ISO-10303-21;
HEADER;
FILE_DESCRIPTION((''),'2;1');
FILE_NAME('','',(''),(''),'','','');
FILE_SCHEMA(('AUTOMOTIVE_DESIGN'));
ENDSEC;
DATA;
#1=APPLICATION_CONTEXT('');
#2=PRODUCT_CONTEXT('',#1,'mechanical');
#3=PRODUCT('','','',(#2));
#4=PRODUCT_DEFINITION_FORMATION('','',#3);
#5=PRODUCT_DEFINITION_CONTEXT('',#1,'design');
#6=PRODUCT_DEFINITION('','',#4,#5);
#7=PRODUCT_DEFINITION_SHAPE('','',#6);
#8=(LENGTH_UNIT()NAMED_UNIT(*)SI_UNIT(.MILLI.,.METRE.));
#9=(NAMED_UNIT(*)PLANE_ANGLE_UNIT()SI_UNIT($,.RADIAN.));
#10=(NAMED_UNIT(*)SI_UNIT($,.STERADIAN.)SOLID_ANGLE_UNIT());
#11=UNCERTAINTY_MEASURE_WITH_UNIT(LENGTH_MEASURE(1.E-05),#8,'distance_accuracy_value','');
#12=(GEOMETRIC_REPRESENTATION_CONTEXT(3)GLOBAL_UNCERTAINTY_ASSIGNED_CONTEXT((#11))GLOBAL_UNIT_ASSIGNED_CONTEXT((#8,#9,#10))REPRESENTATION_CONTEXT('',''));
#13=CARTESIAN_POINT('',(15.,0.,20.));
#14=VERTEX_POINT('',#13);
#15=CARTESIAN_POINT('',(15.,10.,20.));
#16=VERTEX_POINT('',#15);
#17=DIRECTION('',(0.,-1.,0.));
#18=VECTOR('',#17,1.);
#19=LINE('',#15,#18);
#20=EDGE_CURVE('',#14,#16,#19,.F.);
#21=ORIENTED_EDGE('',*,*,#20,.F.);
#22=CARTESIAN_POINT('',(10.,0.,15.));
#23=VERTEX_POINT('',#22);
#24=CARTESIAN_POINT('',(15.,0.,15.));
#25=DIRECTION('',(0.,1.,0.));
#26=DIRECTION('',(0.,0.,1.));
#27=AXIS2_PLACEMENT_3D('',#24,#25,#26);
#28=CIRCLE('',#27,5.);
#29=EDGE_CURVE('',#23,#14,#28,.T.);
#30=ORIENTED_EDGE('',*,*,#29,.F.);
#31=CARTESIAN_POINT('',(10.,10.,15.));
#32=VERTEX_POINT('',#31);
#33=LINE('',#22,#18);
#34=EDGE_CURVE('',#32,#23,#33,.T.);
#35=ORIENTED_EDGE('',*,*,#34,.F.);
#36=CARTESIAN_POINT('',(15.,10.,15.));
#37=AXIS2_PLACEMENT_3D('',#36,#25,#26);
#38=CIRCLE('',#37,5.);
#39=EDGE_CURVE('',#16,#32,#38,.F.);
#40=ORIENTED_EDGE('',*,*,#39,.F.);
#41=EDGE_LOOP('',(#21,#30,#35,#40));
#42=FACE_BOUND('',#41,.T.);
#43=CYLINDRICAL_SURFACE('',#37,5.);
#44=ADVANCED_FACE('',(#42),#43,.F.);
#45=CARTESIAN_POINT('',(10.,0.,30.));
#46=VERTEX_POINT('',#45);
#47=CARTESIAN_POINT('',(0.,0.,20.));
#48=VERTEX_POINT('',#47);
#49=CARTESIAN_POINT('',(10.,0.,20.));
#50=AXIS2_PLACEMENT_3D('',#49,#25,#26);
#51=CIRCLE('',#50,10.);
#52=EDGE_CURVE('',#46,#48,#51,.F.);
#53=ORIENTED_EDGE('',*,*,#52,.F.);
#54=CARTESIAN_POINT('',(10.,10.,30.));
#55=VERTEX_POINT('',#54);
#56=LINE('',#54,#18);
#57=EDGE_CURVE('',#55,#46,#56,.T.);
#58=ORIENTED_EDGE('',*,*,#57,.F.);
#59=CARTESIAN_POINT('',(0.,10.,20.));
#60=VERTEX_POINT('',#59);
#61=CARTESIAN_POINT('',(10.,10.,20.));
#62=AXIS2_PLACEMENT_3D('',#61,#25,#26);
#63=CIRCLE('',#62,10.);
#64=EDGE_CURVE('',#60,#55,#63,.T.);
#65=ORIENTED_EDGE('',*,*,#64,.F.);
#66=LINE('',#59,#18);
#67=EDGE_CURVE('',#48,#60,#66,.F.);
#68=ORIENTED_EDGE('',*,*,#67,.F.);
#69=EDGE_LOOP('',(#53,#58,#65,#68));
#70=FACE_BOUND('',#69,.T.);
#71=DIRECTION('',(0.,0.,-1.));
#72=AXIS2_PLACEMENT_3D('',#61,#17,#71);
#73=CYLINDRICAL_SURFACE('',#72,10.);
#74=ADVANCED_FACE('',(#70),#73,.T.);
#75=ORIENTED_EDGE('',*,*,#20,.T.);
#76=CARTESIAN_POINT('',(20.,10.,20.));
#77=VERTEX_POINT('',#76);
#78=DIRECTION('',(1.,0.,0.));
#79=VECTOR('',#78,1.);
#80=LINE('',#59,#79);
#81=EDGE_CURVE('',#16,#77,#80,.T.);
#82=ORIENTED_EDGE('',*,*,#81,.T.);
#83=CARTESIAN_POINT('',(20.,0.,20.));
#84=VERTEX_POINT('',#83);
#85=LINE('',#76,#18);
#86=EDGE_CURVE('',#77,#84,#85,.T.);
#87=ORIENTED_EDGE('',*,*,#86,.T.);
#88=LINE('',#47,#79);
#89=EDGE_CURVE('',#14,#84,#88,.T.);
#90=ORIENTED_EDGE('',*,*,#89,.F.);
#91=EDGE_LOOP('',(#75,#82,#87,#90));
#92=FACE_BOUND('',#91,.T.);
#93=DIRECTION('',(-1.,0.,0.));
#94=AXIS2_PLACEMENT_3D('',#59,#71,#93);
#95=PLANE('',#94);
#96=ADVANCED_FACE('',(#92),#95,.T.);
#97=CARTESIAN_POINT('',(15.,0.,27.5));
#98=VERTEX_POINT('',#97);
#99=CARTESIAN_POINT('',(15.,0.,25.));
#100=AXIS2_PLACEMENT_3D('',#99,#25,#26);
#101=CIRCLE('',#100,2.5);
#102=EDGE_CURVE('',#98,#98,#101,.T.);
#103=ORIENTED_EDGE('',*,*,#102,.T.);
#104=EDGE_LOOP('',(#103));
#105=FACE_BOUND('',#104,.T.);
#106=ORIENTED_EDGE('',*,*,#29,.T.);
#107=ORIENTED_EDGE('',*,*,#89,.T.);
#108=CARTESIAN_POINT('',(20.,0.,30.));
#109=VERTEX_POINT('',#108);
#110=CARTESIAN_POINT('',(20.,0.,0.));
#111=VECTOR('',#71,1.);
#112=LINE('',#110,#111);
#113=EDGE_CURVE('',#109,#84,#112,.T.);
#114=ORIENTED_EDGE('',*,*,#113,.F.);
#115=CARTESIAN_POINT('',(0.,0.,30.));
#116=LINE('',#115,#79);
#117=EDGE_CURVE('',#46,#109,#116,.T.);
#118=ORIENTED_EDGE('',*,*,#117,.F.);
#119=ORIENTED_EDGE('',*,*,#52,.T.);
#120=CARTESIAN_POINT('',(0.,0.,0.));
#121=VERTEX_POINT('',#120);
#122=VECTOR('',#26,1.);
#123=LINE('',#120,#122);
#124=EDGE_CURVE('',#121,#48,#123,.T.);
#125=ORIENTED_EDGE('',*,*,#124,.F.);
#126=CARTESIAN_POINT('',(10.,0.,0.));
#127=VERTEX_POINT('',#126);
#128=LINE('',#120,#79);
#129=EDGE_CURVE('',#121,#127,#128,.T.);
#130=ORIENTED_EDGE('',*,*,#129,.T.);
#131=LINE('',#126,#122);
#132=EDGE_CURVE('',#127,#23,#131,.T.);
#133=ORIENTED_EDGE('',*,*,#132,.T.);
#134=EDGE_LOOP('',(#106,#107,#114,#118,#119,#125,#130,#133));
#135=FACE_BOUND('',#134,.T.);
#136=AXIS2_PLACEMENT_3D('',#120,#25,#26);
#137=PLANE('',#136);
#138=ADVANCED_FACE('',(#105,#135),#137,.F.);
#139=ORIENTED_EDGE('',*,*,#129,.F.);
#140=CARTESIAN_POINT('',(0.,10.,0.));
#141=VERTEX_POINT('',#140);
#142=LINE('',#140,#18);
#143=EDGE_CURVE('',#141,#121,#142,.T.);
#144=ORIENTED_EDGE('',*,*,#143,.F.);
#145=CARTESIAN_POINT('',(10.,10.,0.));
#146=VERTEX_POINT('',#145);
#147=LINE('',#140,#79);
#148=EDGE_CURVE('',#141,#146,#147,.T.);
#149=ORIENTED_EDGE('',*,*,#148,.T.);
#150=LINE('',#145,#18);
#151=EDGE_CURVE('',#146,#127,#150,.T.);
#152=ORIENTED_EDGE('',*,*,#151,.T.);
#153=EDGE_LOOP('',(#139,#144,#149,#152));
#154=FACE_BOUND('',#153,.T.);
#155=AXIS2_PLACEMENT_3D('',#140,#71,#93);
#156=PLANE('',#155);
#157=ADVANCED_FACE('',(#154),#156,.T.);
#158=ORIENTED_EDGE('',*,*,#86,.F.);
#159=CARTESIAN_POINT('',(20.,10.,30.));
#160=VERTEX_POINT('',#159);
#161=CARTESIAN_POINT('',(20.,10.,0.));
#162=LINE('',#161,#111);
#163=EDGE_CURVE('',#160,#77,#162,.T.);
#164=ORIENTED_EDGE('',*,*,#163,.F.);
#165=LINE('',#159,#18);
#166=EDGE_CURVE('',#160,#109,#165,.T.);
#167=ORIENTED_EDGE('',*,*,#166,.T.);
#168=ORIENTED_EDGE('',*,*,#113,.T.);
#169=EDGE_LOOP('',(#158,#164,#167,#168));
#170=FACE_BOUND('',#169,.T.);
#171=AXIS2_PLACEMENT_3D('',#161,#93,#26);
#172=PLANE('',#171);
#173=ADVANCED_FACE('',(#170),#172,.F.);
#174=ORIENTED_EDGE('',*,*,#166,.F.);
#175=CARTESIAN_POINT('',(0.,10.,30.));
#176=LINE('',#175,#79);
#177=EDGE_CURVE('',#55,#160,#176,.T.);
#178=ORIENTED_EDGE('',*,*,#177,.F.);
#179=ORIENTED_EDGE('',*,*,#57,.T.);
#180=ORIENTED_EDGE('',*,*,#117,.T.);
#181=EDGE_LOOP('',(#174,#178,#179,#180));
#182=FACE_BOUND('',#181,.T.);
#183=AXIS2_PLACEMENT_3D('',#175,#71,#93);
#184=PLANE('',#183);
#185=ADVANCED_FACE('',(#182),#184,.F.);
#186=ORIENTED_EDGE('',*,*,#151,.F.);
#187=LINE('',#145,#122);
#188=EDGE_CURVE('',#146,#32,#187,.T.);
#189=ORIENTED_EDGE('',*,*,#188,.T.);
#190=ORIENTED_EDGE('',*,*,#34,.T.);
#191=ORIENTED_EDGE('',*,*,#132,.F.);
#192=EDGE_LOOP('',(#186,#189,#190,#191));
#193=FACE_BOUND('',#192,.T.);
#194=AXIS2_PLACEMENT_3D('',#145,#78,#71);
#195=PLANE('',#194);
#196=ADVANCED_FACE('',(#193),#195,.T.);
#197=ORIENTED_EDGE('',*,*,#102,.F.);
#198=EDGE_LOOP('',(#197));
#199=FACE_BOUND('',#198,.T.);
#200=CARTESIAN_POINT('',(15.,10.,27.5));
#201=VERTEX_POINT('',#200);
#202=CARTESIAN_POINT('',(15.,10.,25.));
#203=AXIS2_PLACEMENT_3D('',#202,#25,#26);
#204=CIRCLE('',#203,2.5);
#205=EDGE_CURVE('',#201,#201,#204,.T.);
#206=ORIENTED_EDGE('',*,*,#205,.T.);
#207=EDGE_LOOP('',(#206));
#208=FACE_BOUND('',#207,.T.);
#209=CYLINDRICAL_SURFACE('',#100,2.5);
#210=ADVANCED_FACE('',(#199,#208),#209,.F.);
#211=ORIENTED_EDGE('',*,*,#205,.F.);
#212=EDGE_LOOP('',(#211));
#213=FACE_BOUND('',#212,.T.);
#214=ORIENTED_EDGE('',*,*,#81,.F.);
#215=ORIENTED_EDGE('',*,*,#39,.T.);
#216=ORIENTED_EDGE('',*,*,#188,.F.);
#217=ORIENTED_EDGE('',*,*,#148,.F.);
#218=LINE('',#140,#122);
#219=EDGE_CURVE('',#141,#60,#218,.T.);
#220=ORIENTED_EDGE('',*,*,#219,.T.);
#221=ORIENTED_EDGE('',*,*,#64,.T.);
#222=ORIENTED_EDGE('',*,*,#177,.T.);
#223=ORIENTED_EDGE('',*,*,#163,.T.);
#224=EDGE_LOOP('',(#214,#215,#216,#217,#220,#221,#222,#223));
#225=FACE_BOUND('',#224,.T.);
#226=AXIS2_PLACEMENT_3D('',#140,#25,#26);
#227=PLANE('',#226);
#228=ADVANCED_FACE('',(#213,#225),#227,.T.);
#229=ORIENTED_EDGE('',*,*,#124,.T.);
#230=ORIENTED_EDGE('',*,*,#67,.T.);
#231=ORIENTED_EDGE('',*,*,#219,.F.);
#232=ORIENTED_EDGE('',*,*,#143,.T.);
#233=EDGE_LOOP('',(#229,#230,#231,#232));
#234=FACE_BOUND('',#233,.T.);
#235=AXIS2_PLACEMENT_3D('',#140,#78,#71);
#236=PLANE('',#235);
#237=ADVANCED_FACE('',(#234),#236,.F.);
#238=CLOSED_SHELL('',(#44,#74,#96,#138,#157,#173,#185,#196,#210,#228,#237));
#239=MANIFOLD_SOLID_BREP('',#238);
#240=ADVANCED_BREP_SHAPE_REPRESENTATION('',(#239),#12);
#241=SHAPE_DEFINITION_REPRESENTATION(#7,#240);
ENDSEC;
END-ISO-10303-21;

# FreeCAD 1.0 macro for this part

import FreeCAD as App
import Part
import Sketcher

V = App.Vector


def edges_at(feature, points):
    """Names of the edges that pass closest to the given points."""
    edges = feature.Shape.Edges
    near = lambda p: min(range(len(edges)), key=lambda i: edges[i].distToShape(Part.Vertex(*p))[0])
    return sorted({f"Edge{near(p) + 1}" for p in points})

doc = App.newDocument("Part")
params = doc.addObject("Spreadsheet::Sheet", "Params")
for row, (alias, value) in enumerate([
    ("sketch1_width", "10 mm"),
    ("pad1_length", "10 mm"),
    ("fillet_radius", "5 mm"),
    ("fillet2_radius", "10 mm"),
    ("sketch2_diameter", "5 mm"),
], start=1):
    params.set(f"A{row}", alias)
    params.set(f"B{row}", "=" + value)
    params.setAlias(f"B{row}", alias)

body = doc.addObject("PartDesign::Body", "Body")

# Sketch on XZ plane
sketch1 = body.newObject("Sketcher::SketchObject", "Sketch")
sketch1.AttachmentSupport = (doc.getObject("XZ_Plane"), [""])
sketch1.MapMode = "FlatFace"
sketch1.addGeometry([
    Part.LineSegment(V(10, 0, 0), V(0, 0, 0)),  # 0
    Part.LineSegment(V(0, 0, 0), V(0, 30, 0)),  # 1
    Part.LineSegment(V(0, 30, 0), V(20, 30, 0)),  # 2
    Part.LineSegment(V(20, 30, 0), V(20, 20, 0)),  # 3
    Part.LineSegment(V(20, 20, 0), V(10, 20, 0)),  # 4
    Part.LineSegment(V(10, 20, 0), V(10, 0, 0)),  # 5
], False)
sketch1.addConstraint([
    Sketcher.Constraint("Coincident", 0, 2, 1, 1),
    Sketcher.Constraint("Coincident", 1, 2, 2, 1),
    Sketcher.Constraint("Coincident", 2, 2, 3, 1),
    Sketcher.Constraint("Coincident", 3, 2, 4, 1),
    Sketcher.Constraint("Coincident", 4, 2, 5, 1),
    Sketcher.Constraint("Coincident", 5, 2, 0, 1),
    Sketcher.Constraint("Horizontal", 0),
    Sketcher.Constraint("Vertical", 1),
    Sketcher.Constraint("Horizontal", 2),
    Sketcher.Constraint("Vertical", 3),
    Sketcher.Constraint("Horizontal", 4),
    Sketcher.Constraint("Vertical", 5),
    Sketcher.Constraint("Coincident", 0, 2, -1, 1),
    Sketcher.Constraint("Equal", 0, 4),
    Sketcher.Constraint("Equal", 4, 3),
    Sketcher.Constraint("Equal", 2, 5),
    Sketcher.Constraint("DistanceX", 0, 2, 0, 1, 10.0),
])
sketch1.setExpression("Constraints[16]", "Params.sketch1_width")
pad1 = body.newObject("PartDesign::Pad", "Pad")
pad1.Profile = sketch1
pad1.setExpression("Length", "Params.pad1_length")
pad1.Reversed = True
doc.recompute()

fillet = body.newObject("PartDesign::Fillet", "Fillet")
fillet.Base = (pad1, edges_at(pad1, [(10, 5, 20)]))
fillet.setExpression("Radius", "Params.fillet_radius")
doc.recompute()

fillet2 = body.newObject("PartDesign::Fillet", "Fillet001")
fillet2.Base = (fillet, edges_at(fillet, [(0, 5, 30)]))
fillet2.setExpression("Radius", "Params.fillet2_radius")

# Sketch on XZ plane
sketch2 = body.newObject("Sketcher::SketchObject", "Sketch001")
sketch2.AttachmentSupport = (doc.getObject("XZ_Plane"), [""])
sketch2.MapMode = "FlatFace"
sketch2.AttachmentOffset = App.Placement(V(0, 0, -10), App.Rotation())
sketch2.addGeometry(Part.Circle(V(15, 25, 0), V(0, 0, 1), 2.5), False)
sketch2.addConstraint([
    Sketcher.Constraint("Diameter", 0, 5.0),
    Sketcher.Constraint("DistanceX", -1, 1, 0, 3, 15.0),
    Sketcher.Constraint("DistanceY", -1, 1, 0, 3, 25.0),
])
sketch2.setExpression("Constraints[0]", "Params.sketch2_diameter")
pocket1 = body.newObject("PartDesign::Pocket", "Pocket")
pocket1.Profile = sketch2
pocket1.Type = "ThroughAll"
pocket1.Reversed = True

doc.recompute()
